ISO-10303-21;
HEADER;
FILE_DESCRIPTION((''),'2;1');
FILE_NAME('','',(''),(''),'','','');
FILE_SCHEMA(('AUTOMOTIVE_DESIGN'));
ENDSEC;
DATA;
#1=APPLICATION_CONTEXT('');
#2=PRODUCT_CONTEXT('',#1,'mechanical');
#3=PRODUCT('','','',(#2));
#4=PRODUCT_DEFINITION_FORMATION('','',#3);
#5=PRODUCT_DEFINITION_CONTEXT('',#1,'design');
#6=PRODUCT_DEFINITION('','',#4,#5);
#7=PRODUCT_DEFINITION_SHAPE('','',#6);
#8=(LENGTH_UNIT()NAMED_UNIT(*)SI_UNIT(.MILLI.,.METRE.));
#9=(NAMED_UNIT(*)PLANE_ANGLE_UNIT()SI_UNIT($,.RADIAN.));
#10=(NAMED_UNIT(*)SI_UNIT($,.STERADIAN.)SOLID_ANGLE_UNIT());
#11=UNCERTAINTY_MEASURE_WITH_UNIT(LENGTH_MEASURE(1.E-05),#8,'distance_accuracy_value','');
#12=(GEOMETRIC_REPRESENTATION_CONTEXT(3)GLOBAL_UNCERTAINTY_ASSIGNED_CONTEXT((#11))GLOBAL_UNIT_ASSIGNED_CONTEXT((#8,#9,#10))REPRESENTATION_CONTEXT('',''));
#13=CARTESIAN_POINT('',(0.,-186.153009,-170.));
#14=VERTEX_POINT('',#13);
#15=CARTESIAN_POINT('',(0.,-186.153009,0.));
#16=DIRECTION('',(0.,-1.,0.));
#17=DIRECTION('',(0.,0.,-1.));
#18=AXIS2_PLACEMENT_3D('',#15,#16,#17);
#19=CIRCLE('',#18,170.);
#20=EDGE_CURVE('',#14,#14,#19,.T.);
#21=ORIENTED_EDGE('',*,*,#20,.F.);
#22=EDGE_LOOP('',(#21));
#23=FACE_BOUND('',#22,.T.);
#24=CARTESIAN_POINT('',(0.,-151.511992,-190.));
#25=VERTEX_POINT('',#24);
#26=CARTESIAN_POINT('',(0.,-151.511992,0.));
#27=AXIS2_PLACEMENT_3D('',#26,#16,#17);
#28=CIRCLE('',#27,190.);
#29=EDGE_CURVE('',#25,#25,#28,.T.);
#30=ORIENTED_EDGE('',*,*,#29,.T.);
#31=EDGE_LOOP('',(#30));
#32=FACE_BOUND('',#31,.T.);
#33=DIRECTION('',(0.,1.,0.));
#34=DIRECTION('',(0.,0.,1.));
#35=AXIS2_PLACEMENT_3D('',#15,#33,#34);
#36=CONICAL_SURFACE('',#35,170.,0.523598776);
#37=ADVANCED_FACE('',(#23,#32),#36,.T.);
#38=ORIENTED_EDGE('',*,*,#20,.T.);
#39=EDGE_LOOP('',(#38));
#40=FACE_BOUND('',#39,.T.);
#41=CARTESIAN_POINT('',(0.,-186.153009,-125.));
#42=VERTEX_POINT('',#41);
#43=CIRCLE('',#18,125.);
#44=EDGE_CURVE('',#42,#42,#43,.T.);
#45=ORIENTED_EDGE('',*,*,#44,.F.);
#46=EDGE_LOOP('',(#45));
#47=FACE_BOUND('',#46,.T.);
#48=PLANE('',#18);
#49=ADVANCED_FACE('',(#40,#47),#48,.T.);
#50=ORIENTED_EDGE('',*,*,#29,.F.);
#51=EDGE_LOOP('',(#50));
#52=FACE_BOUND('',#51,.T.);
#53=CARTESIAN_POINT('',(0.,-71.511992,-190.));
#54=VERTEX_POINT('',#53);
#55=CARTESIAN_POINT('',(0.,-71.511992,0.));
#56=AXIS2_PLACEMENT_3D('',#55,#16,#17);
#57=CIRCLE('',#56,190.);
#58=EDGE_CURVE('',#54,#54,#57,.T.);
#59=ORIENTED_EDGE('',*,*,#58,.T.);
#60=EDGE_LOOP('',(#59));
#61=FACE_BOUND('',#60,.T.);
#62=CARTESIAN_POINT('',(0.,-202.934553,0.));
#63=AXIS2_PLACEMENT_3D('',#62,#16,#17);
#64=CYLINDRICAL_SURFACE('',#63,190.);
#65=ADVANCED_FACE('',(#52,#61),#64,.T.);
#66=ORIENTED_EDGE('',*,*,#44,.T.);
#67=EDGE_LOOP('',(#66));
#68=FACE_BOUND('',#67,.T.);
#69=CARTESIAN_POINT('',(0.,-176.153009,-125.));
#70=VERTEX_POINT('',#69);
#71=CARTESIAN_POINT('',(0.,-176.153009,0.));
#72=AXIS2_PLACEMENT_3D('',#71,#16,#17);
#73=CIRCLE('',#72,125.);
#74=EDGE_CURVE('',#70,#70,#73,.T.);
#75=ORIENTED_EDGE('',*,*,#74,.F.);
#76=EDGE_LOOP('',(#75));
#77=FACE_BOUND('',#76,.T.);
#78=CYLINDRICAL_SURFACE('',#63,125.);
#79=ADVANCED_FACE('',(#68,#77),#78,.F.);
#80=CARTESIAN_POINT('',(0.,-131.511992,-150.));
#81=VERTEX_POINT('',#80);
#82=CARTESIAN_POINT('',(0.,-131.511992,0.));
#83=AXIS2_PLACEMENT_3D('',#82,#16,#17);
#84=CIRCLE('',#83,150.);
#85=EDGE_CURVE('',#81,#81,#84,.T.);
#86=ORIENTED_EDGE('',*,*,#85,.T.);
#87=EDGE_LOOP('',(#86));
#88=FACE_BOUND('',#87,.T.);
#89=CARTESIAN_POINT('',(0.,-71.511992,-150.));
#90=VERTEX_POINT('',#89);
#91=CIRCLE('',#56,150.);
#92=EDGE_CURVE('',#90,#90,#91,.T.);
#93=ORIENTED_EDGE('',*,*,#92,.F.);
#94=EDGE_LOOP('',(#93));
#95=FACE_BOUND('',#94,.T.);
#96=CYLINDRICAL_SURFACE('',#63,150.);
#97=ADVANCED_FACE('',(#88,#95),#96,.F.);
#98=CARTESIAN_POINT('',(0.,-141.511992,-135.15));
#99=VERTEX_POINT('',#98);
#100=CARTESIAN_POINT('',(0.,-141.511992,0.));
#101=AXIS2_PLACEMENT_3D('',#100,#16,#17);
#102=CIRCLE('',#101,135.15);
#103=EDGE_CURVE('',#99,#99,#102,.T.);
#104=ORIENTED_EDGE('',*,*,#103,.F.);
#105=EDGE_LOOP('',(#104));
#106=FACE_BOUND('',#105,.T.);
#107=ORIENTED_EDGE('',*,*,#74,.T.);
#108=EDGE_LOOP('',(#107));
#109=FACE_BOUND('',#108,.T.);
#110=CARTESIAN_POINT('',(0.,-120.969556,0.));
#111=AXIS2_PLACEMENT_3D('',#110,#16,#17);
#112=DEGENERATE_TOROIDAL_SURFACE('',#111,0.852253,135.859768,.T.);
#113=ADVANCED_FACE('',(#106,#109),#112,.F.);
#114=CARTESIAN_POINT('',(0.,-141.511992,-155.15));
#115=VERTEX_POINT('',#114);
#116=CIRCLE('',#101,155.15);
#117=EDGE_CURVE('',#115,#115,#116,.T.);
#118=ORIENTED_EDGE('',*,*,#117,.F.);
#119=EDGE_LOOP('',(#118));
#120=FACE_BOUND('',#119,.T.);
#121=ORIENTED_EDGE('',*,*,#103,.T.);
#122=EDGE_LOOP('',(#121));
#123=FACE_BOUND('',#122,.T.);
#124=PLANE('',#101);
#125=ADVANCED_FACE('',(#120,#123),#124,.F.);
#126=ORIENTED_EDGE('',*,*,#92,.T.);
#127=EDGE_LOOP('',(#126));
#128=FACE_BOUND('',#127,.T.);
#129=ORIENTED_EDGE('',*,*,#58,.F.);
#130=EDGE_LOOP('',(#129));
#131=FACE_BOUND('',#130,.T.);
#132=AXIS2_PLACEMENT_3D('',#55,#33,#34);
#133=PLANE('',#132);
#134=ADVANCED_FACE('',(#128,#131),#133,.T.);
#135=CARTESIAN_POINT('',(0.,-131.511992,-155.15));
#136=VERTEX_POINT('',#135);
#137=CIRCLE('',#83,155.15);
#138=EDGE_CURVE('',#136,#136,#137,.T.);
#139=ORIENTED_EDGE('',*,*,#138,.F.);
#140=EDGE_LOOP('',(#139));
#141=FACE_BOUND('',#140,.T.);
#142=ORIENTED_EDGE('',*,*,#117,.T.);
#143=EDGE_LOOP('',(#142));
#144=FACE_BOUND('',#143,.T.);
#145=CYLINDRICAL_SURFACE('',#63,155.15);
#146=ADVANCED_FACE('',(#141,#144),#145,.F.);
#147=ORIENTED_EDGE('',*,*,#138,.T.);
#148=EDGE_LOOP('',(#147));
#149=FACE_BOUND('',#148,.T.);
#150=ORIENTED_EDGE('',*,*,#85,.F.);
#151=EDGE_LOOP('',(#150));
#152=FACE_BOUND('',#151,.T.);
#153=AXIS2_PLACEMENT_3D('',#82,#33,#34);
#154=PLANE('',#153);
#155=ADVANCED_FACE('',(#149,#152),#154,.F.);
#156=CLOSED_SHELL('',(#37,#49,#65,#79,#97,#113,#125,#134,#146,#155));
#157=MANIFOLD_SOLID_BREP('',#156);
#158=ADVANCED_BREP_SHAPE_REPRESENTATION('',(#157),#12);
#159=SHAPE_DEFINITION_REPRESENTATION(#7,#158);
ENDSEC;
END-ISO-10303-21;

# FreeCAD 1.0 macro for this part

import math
import FreeCAD as App
import Part
import Sketcher
from FreeCAD import Vector
Q = App.Units.Quantity

doc = App.newDocument("Part")
params = doc.addObject("Spreadsheet::Sheet", "Params")
for row, (alias, value) in enumerate([
    ("sketch1_width", "40 mm"),
    ("sketch1_width2", "20 mm"),
    ("sketch1_width3", "45 mm"),
    ("sketch1_height", "80 mm"),
    ("sketch1_height2", "60 mm"),
    ("revolution_angle", "360 deg"),
], start=1):
    params.set(f"A{row}", alias)
    params.set(f"B{row}", "=" + value)
    params.setAlias(f"B{row}", alias)

body = doc.addObject("PartDesign::Body", "Body")

sketch1 = doc.addObject("Sketcher::SketchObject", "Sketch")
body.addObject(sketch1)
sketch1.AttachmentSupport = (doc.XY_Plane, [""])
sketch1.MapMode = "FlatFace"
sketch1.addGeometry([
    Part.LineSegment(Vector(190, -151.511992, 0), Vector(190, -71.511992, 0)),
    Part.LineSegment(Vector(190, -71.511992, 0), Vector(150, -71.511992, 0)),
    Part.LineSegment(Vector(150, -71.511992, 0), Vector(150, -131.511992, 0)),
    Part.LineSegment(Vector(150, -131.511992, 0), Vector(155.15, -131.511992, 0)),
    Part.LineSegment(Vector(155.15, -131.511992, 0), Vector(155.15, -141.511992, 0)),
    Part.LineSegment(Vector(155.15, -141.511992, 0), Vector(135.15, -141.511992, 0)),
    Part.ArcOfCircle(Part.Circle(Vector(0.852253, -120.969556, 0), Vector(0, 0, 1), 135.859768), math.radians(-12.99162), math.radians(-8.696662)),
    Part.ArcOfCircle(Part.Circle(Vector(0.852253, -120.969556, 0), Vector(0, 0, 1), 135.859768), math.radians(-23.965062), math.radians(-12.99162)),
    Part.LineSegment(Vector(125, -176.153009, 0), Vector(125, -186.153009, 0)),
    Part.LineSegment(Vector(125, -186.153009, 0), Vector(170, -186.153009, 0)),
    Part.LineSegment(Vector(170, -186.153009, 0), Vector(190, -151.511992, 0)),
], False)
sketch1.addConstraint([
    Sketcher.Constraint("Coincident", 0, 2, 1, 1),
    Sketcher.Constraint("Coincident", 1, 2, 2, 1),
    Sketcher.Constraint("Coincident", 2, 2, 3, 1),
    Sketcher.Constraint("Coincident", 3, 2, 4, 1),
    Sketcher.Constraint("Coincident", 4, 2, 5, 1),
    Sketcher.Constraint("Coincident", 5, 2, 6, 2),
    Sketcher.Constraint("Tangent", 6, 1, 7, 2),
    Sketcher.Constraint("Coincident", 7, 1, 8, 1),
    Sketcher.Constraint("Coincident", 8, 2, 9, 1),
    Sketcher.Constraint("Coincident", 9, 2, 10, 1),
    Sketcher.Constraint("Coincident", 10, 2, 0, 1),
    Sketcher.Constraint("Vertical", 0),
    Sketcher.Constraint("Horizontal", 1),
    Sketcher.Constraint("Vertical", 2),
    Sketcher.Constraint("Horizontal", 3),
    Sketcher.Constraint("Vertical", 4),
    Sketcher.Constraint("Horizontal", 5),
    Sketcher.Constraint("Vertical", 8),
    Sketcher.Constraint("Horizontal", 9),
    Sketcher.Constraint("Equal", 6, 7),
    Sketcher.Constraint("Horizontal", 6, 1, 10, 2),
    Sketcher.Constraint("Equal", 4, 8),
    Sketcher.Constraint("DistanceX", 1, 2, 1, 1, Q("40 mm")),
    Sketcher.Constraint("DistanceX", 5, 2, 5, 1, Q("20 mm")),
    Sketcher.Constraint("DistanceX", 9, 1, 9, 2, Q("45 mm")),
    Sketcher.Constraint("DistanceY", 0, 1, 0, 2, Q("80 mm")),
    Sketcher.Constraint("DistanceY", 2, 2, 2, 1, Q("60 mm")),
    Sketcher.Constraint("DistanceY", 4, 2, 4, 1, Q("10 mm")),
    Sketcher.Constraint("Angle", 10, Q("60 deg")),
    Sketcher.Constraint("Distance", 10, Q("40 mm")),
    Sketcher.Constraint("DistanceX", -1, 1, 0, 2, Q("190 mm")),
    Sketcher.Constraint("DistanceX", 3, 1, 3, 2, Q("5.15 mm")),
    Sketcher.Constraint("Radius", 6, Q("135.859768 mm")),
    Sketcher.Constraint("DistanceY", 8, 2, -1, 1, Q("186.153009 mm")),
])
sketch1.setExpression("Constraints[22]", "Params.sketch1_width")
sketch1.setExpression("Constraints[23]", "Params.sketch1_width2")
sketch1.setExpression("Constraints[24]", "Params.sketch1_width3")
sketch1.setExpression("Constraints[25]", "Params.sketch1_height")
sketch1.setExpression("Constraints[26]", "Params.sketch1_height2")
revolution = doc.addObject("PartDesign::Revolution", "Revolution")
body.addObject(revolution)
revolution.Profile = sketch1
revolution.ReferenceAxis = (sketch1, ["V_Axis"])
revolution.setExpression("Angle", "Params.revolution_angle")

doc.recompute()
